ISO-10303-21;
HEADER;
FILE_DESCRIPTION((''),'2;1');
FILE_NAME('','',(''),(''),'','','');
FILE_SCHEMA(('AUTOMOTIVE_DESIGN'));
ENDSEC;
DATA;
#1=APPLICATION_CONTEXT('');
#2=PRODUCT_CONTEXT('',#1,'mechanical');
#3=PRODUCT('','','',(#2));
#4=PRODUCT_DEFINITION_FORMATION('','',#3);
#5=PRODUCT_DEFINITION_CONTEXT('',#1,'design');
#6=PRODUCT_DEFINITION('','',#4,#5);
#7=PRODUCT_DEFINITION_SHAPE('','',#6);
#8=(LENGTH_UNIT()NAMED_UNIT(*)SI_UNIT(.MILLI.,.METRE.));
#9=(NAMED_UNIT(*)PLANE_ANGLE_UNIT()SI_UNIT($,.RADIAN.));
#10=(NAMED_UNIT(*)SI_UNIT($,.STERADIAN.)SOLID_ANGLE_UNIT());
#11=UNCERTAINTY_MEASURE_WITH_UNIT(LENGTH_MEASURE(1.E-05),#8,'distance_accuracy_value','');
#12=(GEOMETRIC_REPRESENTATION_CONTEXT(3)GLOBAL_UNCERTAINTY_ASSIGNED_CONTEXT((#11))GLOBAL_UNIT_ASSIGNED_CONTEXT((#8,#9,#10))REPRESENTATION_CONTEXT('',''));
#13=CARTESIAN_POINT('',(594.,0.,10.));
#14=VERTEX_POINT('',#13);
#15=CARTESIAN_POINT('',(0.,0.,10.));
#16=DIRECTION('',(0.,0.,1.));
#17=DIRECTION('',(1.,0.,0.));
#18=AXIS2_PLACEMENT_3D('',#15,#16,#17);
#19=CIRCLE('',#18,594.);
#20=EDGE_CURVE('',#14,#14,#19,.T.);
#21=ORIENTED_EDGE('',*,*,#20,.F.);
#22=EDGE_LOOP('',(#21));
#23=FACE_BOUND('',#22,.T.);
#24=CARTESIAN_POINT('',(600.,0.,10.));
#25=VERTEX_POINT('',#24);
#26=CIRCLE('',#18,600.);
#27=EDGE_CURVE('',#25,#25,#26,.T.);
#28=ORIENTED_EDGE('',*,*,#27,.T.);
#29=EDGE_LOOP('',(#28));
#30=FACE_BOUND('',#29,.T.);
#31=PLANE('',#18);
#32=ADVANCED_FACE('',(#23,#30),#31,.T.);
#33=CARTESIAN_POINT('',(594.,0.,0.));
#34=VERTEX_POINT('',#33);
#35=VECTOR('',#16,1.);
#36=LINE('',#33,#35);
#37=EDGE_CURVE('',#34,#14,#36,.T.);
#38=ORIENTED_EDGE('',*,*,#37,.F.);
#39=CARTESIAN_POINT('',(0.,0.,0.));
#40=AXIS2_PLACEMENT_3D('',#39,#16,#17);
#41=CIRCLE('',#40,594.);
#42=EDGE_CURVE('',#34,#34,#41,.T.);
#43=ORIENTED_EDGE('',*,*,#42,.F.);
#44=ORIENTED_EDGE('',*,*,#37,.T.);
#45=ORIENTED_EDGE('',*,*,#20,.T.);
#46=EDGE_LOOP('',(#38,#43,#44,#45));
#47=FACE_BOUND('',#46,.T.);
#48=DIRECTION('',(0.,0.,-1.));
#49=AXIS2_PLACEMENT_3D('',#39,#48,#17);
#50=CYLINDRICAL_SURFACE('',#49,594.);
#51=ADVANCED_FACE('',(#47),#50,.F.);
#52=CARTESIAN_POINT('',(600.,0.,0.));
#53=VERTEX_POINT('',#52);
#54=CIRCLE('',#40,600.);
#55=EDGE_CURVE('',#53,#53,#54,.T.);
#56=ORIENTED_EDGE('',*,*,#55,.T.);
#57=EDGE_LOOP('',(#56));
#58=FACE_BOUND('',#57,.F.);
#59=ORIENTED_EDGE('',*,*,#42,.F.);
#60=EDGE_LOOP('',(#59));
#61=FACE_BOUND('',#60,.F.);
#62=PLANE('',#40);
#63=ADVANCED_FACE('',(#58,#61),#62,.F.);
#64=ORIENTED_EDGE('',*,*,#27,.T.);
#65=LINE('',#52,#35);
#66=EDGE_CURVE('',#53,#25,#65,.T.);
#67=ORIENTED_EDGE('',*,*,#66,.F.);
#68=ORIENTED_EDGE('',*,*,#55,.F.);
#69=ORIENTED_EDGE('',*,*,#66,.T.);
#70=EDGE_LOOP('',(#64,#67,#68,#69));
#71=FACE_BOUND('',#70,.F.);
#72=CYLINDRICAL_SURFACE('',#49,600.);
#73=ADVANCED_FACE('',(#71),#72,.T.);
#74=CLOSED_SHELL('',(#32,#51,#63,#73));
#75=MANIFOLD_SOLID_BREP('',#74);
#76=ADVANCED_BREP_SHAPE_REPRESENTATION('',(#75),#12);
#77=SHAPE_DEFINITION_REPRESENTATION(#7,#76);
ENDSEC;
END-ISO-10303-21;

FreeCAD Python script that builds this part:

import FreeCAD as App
import Part
import Sketcher

V = App.Vector
Q = App.Units.Quantity

doc = App.newDocument("Part")
body = doc.addObject("PartDesign::Body", "Body")

# Sketch on XY plane
sketch1 = body.newObject("Sketcher::SketchObject", "Sketch")
sketch1.AttachmentSupport = (doc.getObject("XY_Plane"), [""])
sketch1.MapMode = "FlatFace"
sketch1.addGeometry([
    Part.Circle(V(0, 0, 0), V(0, 0, 1), 600),
    Part.Circle(V(0, 0, 0), V(0, 0, 1), 594),
], False)
sketch1.addConstraint([
    Sketcher.Constraint("Coincident", 0, 3, -1, 1),
    Sketcher.Constraint("Coincident", 1, 3, -1, 1),
    Sketcher.Constraint("Diameter", 0, Q("1200 mm")),
    Sketcher.Constraint("Diameter", 1, Q("1188 mm")),
])
pad1 = body.newObject("PartDesign::Pad", "Pad")
pad1.Profile = sketch1
pad1.Length = 10

doc.recompute()
